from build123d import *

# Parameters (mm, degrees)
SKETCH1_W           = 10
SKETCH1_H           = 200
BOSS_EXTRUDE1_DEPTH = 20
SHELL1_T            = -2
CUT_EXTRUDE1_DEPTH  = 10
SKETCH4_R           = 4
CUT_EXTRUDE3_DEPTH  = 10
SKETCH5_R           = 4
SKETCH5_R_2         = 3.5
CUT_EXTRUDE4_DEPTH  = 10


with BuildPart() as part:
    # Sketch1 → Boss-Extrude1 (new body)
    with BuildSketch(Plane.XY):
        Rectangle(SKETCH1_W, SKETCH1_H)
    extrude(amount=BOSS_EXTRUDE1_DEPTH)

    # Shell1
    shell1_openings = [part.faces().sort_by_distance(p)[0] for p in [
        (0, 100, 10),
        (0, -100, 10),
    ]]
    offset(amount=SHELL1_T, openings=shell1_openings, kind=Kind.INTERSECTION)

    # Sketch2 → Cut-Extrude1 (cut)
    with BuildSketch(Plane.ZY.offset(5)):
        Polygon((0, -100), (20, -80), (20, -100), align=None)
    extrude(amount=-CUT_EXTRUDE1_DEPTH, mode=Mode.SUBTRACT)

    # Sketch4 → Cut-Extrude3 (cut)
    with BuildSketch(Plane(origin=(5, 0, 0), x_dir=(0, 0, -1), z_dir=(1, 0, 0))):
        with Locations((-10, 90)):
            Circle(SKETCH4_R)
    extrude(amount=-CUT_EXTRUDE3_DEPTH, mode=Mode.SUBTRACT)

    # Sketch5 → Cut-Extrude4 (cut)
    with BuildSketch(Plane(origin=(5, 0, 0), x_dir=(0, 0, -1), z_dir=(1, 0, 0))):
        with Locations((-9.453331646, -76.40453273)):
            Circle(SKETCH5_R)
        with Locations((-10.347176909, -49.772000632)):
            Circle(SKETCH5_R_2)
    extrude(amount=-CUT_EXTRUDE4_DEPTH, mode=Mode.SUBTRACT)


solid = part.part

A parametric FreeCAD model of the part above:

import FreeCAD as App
import Part
import Sketcher
from FreeCAD import Vector
Q = App.Units.Quantity


def faces_at(feature, points):
    """Names of the faces that lie closest to the given points."""
    faces = feature.Shape.Faces
    near = lambda p: min(range(len(faces)), key=lambda i: faces[i].distToShape(Part.Vertex(*p))[0])
    return sorted({f"Face{near(p) + 1}" for p in points})


def add_polygon(sketch, points):
    """Adds a closed chain of lines whose ends are joined by coincident constraints."""
    first, n = sketch.GeometryCount, len(points)
    for a, b in zip(points, points[1:] + points[:1]):
        sketch.addGeometry(Part.LineSegment(App.Vector(*a, 0), App.Vector(*b, 0)), False)
    for i in range(n):
        sketch.addConstraint(Sketcher.Constraint("Coincident", first + i, 2, first + (i + 1) % n, 1))

doc = App.newDocument("Part")
body = doc.addObject("PartDesign::Body", "Body")

sketch1 = doc.addObject("Sketcher::SketchObject", "Sketch")
body.addObject(sketch1)
sketch1.AttachmentSupport = (doc.XY_Plane, [""])
sketch1.MapMode = "FlatFace"
add_polygon(sketch1, [(-5, 100), (-5, -100), (5, -100), (5, 100)])
sketch1.addConstraint([
    Sketcher.Constraint("Vertical", 0),
    Sketcher.Constraint("Horizontal", 1),
    Sketcher.Constraint("Vertical", 2),
    Sketcher.Constraint("Horizontal", 3),
    Sketcher.Constraint("Symmetric", 0, 2, 2, 2, -1, 1),
    Sketcher.Constraint("DistanceX", 1, 1, 1, 2, Q("10 mm")),
    Sketcher.Constraint("DistanceY", 0, 2, 0, 1, Q("200 mm")),
])
pad1 = doc.addObject("PartDesign::Pad", "Pad")
body.addObject(pad1)
pad1.Profile = sketch1
pad1.Length = 20
doc.recompute()

thickness = doc.addObject("PartDesign::Thickness", "Thickness")
body.addObject(thickness)
thickness.Base = (pad1, faces_at(pad1, [(0, 100, 10), (0, -100, 10)]))
thickness.Value = 2
thickness.Reversed = True
thickness.Join = "Intersection"

sketch2 = doc.addObject("Sketcher::SketchObject", "Sketch001")
body.addObject(sketch2)
sketch2.AttachmentSupport = (doc.YZ_Plane, [""])
sketch2.MapMode = "FlatFace"
sketch2.AttachmentOffset = App.Placement(Vector(0, 0, -5), App.Rotation())
add_polygon(sketch2, [(-80, 20), (-100, 0), (-100, 20)])
sketch2.addConstraint([
    Sketcher.Constraint("Vertical", 1),
    Sketcher.Constraint("Horizontal", 2),
    Sketcher.Constraint("PointOnObject", 0, 2, -1),
    Sketcher.Constraint("Equal", 2, 1),
    Sketcher.Constraint("DistanceX", 2, 1, 2, 2, Q("20 mm")),
    Sketcher.Constraint("DistanceX", 0, 2, -1, 1, Q("100 mm")),
])
pocket1 = doc.addObject("PartDesign::Pocket", "Pocket")
body.addObject(pocket1)
pocket1.Profile = sketch2
pocket1.Length = 10
pocket1.Reversed = True

sketch3 = doc.addObject("Sketcher::SketchObject", "Sketch002")
body.addObject(sketch3)
sketch3.AttachmentSupport = (doc.YZ_Plane, [""])
sketch3.MapMode = "FlatFace"
sketch3.AttachmentOffset = App.Placement(Vector(0, 0, 5), App.Rotation())
sketch3.addGeometry(Part.Circle(Vector(90, 10, 0), Vector(0, 0, 1), 4), False)
sketch3.addConstraint([
    Sketcher.Constraint("Diameter", 0, Q("8 mm")),
    Sketcher.Constraint("DistanceX", -1, 1, 0, 3, Q("90 mm")),
    Sketcher.Constraint("DistanceY", -1, 1, 0, 3, Q("10 mm")),
])
pocket2 = doc.addObject("PartDesign::Pocket", "Pocket001")
body.addObject(pocket2)
pocket2.Profile = sketch3
pocket2.Length = 10

sketch4 = doc.addObject("Sketcher::SketchObject", "Sketch003")
body.addObject(sketch4)
sketch4.AttachmentSupport = (doc.YZ_Plane, [""])
sketch4.MapMode = "FlatFace"
sketch4.AttachmentOffset = App.Placement(Vector(0, 0, 5), App.Rotation())
sketch4.addGeometry([
    Part.Circle(Vector(-76.4, 9.5, 0), Vector(0, 0, 1), 4),
    Part.Circle(Vector(-49.8, 10.3, 0), Vector(0, 0, 1), 3.5),
], False)
sketch4.addConstraint([
    Sketcher.Constraint("Diameter", 0, Q("8 mm")),
    Sketcher.Constraint("Diameter", 1, Q("7 mm")),
    Sketcher.Constraint("DistanceX", 1, 3, -1, 1, Q("49.772001 mm")),
    Sketcher.Constraint("DistanceY", -1, 1, 0, 3, Q("9.453332 mm")),
    Sketcher.Constraint("DistanceX", 0, 3, -1, 1, Q("76.404533 mm")),
    Sketcher.Constraint("DistanceY", -1, 1, 1, 3, Q("10.347177 mm")),
])
pocket3 = doc.addObject("PartDesign::Pocket", "Pocket002")
body.addObject(pocket3)
pocket3.Profile = sketch4
pocket3.Length = 10

doc.recompute()
